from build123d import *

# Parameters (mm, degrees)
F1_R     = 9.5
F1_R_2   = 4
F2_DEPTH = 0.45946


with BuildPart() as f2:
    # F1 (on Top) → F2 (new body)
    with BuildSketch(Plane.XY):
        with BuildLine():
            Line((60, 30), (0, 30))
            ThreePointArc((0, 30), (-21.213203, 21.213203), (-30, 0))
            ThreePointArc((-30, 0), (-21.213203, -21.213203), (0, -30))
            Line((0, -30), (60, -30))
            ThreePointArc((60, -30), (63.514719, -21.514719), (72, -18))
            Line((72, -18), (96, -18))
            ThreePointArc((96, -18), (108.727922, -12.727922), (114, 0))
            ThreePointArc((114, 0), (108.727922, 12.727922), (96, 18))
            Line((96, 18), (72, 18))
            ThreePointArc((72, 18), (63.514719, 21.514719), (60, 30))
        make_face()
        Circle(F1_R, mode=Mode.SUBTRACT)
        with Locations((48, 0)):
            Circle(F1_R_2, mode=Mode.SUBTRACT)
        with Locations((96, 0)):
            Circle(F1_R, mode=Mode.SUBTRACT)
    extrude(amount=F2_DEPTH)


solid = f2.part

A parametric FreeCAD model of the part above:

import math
import FreeCAD as App
import Part
import Sketcher
from FreeCAD import Vector

doc = App.newDocument("Part")
body = doc.addObject("PartDesign::Body", "Body")

# Sketch on XY plane
sketch1 = body.newObject("Sketcher::SketchObject", "Sketch")
sketch1.AttachmentSupport = (doc.getObject("XY_Plane"), [""])
sketch1.MapMode = "FlatFace"
sketch1.addGeometry([
    Part.LineSegment(Vector(60, 30, 0), Vector(0, 30, 0)),  # 0
    Part.ArcOfCircle(Part.Circle(Vector(0, 0, 0), Vector(0, 0, 1), 30), math.radians(90), math.radians(180)),  # 1
    Part.ArcOfCircle(Part.Circle(Vector(0, 0, 0), Vector(0, 0, 1), 30), math.radians(-180), math.radians(-90)),  # 2
    Part.LineSegment(Vector(0, -30, 0), Vector(60, -30, 0)),  # 3
    Part.ArcOfCircle(Part.Circle(Vector(72, -30, 0), Vector(0, 0, 1), 12), math.radians(90), math.radians(180)),  # 4
    Part.LineSegment(Vector(72, -18, 0), Vector(96, -18, 0)),  # 5
    Part.ArcOfCircle(Part.Circle(Vector(96, 0, 0), Vector(0, 0, 1), 18), math.radians(-90), math.radians(0)),  # 6
    Part.ArcOfCircle(Part.Circle(Vector(96, 0, 0), Vector(0, 0, 1), 18), math.radians(0), math.radians(90)),  # 7
    Part.LineSegment(Vector(96, 18, 0), Vector(72, 18, 0)),  # 8
    Part.ArcOfCircle(Part.Circle(Vector(72, 30, 0), Vector(0, 0, 1), 12), math.radians(-180), math.radians(-90)),  # 9
    Part.Circle(Vector(0, 0, 0), Vector(0, 0, 1), 9.5),  # 10
    Part.Circle(Vector(48, 0, 0), Vector(0, 0, 1), 4),  # 11
    Part.Circle(Vector(96, 0, 0), Vector(0, 0, 1), 9.5),  # 12
], False)
sketch1.addConstraint([
    Sketcher.Constraint("Tangent", 0, 2, 1, 1),
    Sketcher.Constraint("Tangent", 1, 2, 2, 1),
    Sketcher.Constraint("Tangent", 2, 2, 3, 1),
    Sketcher.Constraint("Coincident", 3, 2, 4, 2),
    Sketcher.Constraint("Tangent", 4, 1, 5, 1),
    Sketcher.Constraint("Tangent", 5, 2, 6, 1),
    Sketcher.Constraint("Tangent", 6, 2, 7, 1),
    Sketcher.Constraint("Tangent", 7, 2, 8, 1),
    Sketcher.Constraint("Tangent", 8, 2, 9, 2),
    Sketcher.Constraint("Coincident", 9, 1, 0, 1),
    Sketcher.Constraint("Horizontal", 0),
    Sketcher.Constraint("Horizontal", 3),
    Sketcher.Constraint("Horizontal", 5),
    Sketcher.Constraint("Horizontal", 8),
    Sketcher.Constraint("Coincident", 1, 3, -1, 1),
    Sketcher.Constraint("Coincident", 10, 3, -1, 1),
    Sketcher.Constraint("Coincident", 12, 3, 6, 3),
    Sketcher.Constraint("Equal", 1, 2),
    Sketcher.Constraint("Equal", 6, 7),
    Sketcher.Constraint("Equal", 4, 9),
    Sketcher.Constraint("Equal", 10, 12),
    Sketcher.Constraint("Symmetric", 4, 3, 9, 3, -1),
    Sketcher.Constraint("PointOnObject", 11, 3, -1),
    Sketcher.Constraint("PointOnObject", 1, 2, -1),
    Sketcher.Constraint("PointOnObject", 6, 2, -1),
    Sketcher.Constraint("Horizontal", 9, 3, 0, 2),
    Sketcher.Constraint("Diameter", 10, 19.0),
    Sketcher.Constraint("Diameter", 11, 8.0),
    Sketcher.Constraint("Radius", 1, 30.000001),
    Sketcher.Constraint("Radius", 4, 12.000001),
    Sketcher.Constraint("DistanceX", 0, 2, 0, 1, 60.0),
    Sketcher.Constraint("DistanceX", 5, 1, 5, 2, 24.0),
    Sketcher.Constraint("DistanceX", -1, 1, 11, 3, 48.0),
])
pad1 = body.newObject("PartDesign::Pad", "Pad")
pad1.Profile = sketch1
pad1.Length = 0.45946

doc.recompute()
